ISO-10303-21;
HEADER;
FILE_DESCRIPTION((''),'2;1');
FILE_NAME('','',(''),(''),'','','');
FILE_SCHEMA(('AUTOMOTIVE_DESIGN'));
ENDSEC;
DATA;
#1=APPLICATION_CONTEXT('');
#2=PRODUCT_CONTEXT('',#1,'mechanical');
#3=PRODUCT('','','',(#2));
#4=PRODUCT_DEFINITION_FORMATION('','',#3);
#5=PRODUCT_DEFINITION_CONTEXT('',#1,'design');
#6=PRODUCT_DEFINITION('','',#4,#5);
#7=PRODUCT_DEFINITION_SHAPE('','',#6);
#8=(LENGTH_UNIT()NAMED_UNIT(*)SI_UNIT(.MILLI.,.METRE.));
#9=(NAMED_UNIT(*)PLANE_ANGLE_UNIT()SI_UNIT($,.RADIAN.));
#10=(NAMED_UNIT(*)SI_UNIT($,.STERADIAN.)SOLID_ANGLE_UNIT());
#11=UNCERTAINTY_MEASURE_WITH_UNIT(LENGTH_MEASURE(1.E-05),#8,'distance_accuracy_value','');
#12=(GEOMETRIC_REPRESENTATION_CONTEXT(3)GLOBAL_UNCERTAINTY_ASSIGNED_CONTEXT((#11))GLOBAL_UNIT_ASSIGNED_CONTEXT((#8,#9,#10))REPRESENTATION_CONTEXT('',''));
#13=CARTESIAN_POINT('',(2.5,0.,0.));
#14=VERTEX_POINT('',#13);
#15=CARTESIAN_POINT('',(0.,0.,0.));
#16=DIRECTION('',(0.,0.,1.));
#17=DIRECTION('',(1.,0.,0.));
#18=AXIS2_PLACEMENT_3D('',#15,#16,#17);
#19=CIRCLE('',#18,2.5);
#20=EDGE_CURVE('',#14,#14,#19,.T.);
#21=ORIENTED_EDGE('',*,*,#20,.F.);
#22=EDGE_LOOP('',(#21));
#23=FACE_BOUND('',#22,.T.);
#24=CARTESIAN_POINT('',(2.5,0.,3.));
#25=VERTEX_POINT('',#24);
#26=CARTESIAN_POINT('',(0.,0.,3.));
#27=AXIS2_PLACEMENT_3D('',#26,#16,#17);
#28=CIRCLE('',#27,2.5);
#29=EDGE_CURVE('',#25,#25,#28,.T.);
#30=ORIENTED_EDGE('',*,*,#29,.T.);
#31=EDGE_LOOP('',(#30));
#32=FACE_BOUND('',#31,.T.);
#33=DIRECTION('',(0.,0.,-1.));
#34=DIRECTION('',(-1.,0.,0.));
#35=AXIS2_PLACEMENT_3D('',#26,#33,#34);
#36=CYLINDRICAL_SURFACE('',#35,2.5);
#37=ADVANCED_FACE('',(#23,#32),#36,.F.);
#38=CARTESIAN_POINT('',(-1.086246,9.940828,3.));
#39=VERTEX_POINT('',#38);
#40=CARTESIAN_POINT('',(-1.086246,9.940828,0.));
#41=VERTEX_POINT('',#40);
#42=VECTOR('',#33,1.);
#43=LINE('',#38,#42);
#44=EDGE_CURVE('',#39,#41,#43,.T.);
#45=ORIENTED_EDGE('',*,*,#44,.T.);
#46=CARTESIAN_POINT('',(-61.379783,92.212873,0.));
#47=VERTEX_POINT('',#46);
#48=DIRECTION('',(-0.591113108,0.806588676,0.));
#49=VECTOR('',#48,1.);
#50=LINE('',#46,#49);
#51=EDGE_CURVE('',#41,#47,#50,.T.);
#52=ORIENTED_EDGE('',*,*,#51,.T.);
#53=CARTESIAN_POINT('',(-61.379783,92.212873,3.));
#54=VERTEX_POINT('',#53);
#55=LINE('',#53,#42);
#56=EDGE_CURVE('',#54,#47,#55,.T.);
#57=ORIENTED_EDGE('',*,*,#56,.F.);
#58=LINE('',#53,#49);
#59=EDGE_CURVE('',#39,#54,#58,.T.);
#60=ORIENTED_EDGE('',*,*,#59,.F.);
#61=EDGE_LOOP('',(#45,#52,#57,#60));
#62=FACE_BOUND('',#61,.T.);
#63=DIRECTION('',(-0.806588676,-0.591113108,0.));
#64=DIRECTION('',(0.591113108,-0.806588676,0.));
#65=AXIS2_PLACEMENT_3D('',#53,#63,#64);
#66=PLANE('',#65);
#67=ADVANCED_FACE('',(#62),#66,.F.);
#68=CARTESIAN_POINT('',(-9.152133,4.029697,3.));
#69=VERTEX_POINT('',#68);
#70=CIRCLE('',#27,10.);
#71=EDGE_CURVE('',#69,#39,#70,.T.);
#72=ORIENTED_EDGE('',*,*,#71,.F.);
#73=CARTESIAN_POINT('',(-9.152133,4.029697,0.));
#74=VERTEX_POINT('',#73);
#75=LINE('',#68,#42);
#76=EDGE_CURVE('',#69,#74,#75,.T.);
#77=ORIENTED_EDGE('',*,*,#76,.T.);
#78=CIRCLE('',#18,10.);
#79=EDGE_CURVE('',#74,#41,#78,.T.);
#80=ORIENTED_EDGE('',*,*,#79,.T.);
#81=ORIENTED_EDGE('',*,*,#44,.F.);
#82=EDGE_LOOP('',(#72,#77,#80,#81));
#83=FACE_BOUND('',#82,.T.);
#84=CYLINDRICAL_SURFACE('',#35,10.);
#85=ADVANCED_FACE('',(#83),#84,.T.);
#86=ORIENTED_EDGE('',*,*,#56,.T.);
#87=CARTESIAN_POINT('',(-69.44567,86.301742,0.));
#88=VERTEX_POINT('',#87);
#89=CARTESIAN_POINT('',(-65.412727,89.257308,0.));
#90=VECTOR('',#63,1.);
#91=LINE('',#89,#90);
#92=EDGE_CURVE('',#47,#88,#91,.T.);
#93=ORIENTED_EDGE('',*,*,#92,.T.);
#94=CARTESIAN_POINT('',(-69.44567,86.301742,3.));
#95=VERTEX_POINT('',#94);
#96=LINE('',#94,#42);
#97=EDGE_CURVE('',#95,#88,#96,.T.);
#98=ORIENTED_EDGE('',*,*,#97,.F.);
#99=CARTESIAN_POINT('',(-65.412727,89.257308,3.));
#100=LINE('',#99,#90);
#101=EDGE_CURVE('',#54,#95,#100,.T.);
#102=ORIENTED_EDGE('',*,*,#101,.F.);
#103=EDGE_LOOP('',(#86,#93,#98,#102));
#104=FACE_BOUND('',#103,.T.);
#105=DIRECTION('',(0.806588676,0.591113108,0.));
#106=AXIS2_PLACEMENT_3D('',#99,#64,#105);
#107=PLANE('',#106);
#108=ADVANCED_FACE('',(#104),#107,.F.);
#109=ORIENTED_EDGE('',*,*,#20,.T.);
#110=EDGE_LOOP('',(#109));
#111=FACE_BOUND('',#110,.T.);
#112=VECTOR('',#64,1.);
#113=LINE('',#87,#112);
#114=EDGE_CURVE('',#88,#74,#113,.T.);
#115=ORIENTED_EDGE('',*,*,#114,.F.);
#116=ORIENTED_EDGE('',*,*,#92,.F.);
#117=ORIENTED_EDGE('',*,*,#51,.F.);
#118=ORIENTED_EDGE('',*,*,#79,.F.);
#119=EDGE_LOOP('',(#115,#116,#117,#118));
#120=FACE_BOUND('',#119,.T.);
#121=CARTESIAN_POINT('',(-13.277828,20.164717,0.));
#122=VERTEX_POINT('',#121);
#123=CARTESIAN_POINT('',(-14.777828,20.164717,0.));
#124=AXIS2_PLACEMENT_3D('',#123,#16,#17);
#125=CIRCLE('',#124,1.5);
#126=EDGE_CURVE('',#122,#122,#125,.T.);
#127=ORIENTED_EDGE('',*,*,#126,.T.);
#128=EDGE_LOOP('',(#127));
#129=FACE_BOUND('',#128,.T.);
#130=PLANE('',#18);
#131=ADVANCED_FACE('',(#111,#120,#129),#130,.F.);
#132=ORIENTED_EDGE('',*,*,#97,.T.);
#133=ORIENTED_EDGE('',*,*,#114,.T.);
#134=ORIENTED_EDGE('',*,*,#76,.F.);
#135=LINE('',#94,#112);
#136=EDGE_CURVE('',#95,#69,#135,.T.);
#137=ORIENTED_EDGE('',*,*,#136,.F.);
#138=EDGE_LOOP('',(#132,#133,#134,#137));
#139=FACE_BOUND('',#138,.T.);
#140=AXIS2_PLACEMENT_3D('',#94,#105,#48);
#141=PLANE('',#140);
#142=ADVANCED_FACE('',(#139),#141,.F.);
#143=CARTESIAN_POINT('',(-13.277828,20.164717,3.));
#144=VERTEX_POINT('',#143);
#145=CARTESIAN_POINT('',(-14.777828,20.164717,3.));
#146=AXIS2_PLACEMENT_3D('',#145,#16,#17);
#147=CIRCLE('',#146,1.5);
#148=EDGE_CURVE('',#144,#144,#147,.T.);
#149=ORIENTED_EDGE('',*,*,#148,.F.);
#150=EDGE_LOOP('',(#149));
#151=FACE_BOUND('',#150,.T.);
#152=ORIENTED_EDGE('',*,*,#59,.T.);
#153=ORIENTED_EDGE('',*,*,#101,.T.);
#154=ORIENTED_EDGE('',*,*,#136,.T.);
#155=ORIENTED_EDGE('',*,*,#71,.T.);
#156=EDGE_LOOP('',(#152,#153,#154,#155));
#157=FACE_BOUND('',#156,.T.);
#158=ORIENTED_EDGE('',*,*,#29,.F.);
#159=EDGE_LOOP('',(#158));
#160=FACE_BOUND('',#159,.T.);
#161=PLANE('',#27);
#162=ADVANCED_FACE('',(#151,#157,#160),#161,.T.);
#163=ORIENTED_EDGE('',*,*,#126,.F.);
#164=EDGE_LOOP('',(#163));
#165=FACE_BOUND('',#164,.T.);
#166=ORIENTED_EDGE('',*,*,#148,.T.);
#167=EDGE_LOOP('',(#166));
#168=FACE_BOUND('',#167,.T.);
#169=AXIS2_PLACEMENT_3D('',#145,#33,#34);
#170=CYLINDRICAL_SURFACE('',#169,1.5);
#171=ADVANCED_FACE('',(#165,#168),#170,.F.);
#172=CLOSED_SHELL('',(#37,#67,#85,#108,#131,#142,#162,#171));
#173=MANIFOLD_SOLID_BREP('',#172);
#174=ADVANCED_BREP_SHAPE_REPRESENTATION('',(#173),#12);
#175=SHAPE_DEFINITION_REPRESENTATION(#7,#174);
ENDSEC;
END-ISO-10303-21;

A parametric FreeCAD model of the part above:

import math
import FreeCAD as App
import Part
import Sketcher

V = App.Vector
Q = App.Units.Quantity

doc = App.newDocument("Part")
body = doc.addObject("PartDesign::Body", "Body")

sketch1 = body.newObject("Sketcher::SketchObject", "Sketch")
sketch1.AttachmentSupport = (doc.getObject("XY_Plane"), [""])
sketch1.MapMode = "FlatFace"
sketch1.addGeometry([
    Part.LineSegment(V(-65.4, 89.3, 0), V(-69.4, 86.3, 0)),
    Part.LineSegment(V(-69.4, 86.3, 0), V(-9.2, 4, 0)),
    Part.ArcOfCircle(Part.Circle(V(0, 0, 0), V(0, 0, 1), 10), math.radians(156), math.radians(456)),
    Part.LineSegment(V(-1.1, 9.9, 0), V(-61.4, 92.2, 0)),
    Part.LineSegment(V(-61.4, 92.2, 0), V(-65.4, 89.3, 0)),
    Part.Circle(V(0, 0, 0), V(0, 0, 1), 2.5),
    Part.Circle(V(-14.8, 20.2, 0), V(0, 0, 1), 1.5),
], False)
sketch1.addConstraint([
    Sketcher.Constraint("Coincident", 0, 2, 1, 1),
    Sketcher.Constraint("Coincident", 1, 2, 2, 1),
    Sketcher.Constraint("Coincident", 2, 2, 3, 1),
    Sketcher.Constraint("Coincident", 3, 2, 4, 1),
    Sketcher.Constraint("Coincident", 4, 2, 0, 1),
    Sketcher.Constraint("Coincident", 2, 3, -1, 1),
    Sketcher.Constraint("Coincident", 5, 3, -1, 1),
    Sketcher.Constraint("Perpendicular", 0, 1),
    Sketcher.Constraint("Parallel", 1, 3),
    Sketcher.Constraint("Perpendicular", 3, 4),
    Sketcher.Constraint("Equal", 1, 3),
    Sketcher.Constraint("Equal", 0, 4),
    Sketcher.Constraint("Diameter", 5, Q("5 mm")),
    Sketcher.Constraint("Diameter", 6, Q("3 mm")),
    Sketcher.Constraint("Radius", 2, Q("10 mm")),
    Sketcher.Constraint("Distance", 0, Q("5 mm")),
    Sketcher.Constraint("Distance", 1, Q("102 mm")),
    Sketcher.Constraint("DistanceX", 4, 2, 6, 3, Q("50.634899 mm")),
    Sketcher.Constraint("DistanceX", 0, 2, -1, 1, Q("69.44567 mm")),
    Sketcher.Constraint("DistanceY", 1, 2, 6, 3, Q("16.13502 mm")),
])
pad1 = body.newObject("PartDesign::Pad", "Pad")
pad1.Profile = sketch1
pad1.Length = 3

doc.recompute()
